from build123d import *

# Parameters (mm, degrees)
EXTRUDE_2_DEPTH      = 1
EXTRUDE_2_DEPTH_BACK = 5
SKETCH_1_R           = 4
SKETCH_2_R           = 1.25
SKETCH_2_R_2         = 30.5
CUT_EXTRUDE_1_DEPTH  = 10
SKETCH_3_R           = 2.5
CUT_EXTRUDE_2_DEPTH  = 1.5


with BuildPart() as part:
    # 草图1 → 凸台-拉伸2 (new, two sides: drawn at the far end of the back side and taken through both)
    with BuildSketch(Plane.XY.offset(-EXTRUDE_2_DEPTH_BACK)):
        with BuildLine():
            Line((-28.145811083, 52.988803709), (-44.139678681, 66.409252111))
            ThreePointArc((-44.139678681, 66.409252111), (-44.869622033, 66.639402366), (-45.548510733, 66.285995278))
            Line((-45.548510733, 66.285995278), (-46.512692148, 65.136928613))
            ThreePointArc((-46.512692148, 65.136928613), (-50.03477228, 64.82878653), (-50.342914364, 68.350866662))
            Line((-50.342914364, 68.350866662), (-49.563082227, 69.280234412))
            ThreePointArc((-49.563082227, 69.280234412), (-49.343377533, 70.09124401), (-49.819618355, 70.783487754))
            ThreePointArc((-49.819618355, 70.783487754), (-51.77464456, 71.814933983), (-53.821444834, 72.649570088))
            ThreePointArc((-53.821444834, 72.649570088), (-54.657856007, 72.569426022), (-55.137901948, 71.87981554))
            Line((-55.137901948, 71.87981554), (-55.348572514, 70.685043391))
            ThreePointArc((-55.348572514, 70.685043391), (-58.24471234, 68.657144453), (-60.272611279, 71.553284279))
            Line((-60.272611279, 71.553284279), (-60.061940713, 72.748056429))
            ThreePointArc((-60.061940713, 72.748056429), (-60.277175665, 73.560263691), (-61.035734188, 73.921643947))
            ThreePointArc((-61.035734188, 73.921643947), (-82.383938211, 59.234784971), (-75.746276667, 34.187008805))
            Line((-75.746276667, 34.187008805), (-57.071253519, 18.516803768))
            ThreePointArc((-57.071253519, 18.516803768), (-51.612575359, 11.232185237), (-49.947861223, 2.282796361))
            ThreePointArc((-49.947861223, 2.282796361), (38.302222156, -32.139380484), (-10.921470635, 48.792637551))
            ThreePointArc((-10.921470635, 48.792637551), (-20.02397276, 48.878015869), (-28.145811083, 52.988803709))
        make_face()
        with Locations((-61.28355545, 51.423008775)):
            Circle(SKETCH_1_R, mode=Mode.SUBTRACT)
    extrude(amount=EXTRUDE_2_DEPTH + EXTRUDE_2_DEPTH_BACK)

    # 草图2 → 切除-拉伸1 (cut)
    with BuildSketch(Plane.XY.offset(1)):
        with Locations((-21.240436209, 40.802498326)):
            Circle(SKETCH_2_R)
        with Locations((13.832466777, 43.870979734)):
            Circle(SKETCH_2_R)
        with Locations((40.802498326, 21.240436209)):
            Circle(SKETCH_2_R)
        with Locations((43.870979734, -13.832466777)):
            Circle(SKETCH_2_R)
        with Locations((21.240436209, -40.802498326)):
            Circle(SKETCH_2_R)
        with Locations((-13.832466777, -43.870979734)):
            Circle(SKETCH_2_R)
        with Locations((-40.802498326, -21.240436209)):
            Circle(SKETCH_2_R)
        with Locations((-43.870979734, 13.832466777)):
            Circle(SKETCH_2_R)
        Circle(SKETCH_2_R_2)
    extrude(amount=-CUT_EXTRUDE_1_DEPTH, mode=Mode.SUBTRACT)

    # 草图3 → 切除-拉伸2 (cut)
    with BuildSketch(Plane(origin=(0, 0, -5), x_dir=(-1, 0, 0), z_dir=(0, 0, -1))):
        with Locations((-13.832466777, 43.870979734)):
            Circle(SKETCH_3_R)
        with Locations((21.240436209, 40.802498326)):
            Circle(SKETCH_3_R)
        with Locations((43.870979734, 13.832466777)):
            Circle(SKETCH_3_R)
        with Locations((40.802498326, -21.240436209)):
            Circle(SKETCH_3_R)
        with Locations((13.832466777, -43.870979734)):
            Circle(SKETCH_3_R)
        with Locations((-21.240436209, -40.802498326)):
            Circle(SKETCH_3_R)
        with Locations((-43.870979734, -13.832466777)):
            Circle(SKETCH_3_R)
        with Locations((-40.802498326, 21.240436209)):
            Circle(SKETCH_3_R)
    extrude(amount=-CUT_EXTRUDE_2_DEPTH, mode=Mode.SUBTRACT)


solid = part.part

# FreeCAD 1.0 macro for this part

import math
import FreeCAD as App
import Part
import Sketcher
Q = App.Units.Quantity

doc = App.newDocument("Part")
body = doc.addObject("PartDesign::Body", "Body")

sketch1 = body.newObject("Sketcher::SketchObject", "Sketch")
sketch1.AttachmentSupport = (doc.getObject("XY_Plane"), [""])
sketch1.MapMode = "FlatFace"
sketch1.addGeometry(Part.LineSegment(App.Vector(-28.145811, 52.988804, 0), App.Vector(-44.139679, 66.409252, 0)), False)
sketch1.addGeometry(Part.ArcOfCircle(Part.Circle(App.Vector(-44.782466, 65.643208, 0), App.Vector(0, 0, 1), 1), math.radians(50), math.radians(140)), False)
sketch1.addGeometry(Part.LineSegment(App.Vector(-45.548511, 66.285995, 0), App.Vector(-46.512692, 65.136929, 0)), False)
sketch1.addGeometry(Part.ArcOfCircle(Part.Circle(App.Vector(-48.427803, 66.743898, 0), App.Vector(0, 0, 1), 2.5), math.radians(140), math.radians(320)), False)
sketch1.addGeometry(Part.LineSegment(App.Vector(-50.342914, 68.350867, 0), App.Vector(-49.563082, 69.280234, 0)), False)
sketch1.addGeometry(Part.ArcOfCircle(Part.Circle(App.Vector(-50.329127, 69.923022, 0), App.Vector(0, 0, 1), 1), math.radians(-40), math.radians(59.368916)), False)
sketch1.addGeometry(Part.ArcOfCircle(Part.Circle(App.Vector(-61.283555, 51.423009, 0), App.Vector(0, 0, 1), 22.5), math.radians(59.368916), math.radians(70.631084)), False)
sketch1.addGeometry(Part.ArcOfCircle(Part.Circle(App.Vector(-54.153094, 71.706167, 0), App.Vector(0, 0, 1), 1), math.radians(70.631084), math.radians(170)), False)
sketch1.addGeometry(Part.LineSegment(App.Vector(-55.137902, 71.879816, 0), App.Vector(-55.348573, 70.685043, 0)), False)
sketch1.addGeometry(Part.ArcOfCircle(Part.Circle(App.Vector(-57.810592, 71.119164, 0), App.Vector(0, 0, 1), 2.5), math.radians(170), math.radians(350)), False)
sketch1.addGeometry(Part.LineSegment(App.Vector(-60.272611, 71.553284, 0), App.Vector(-60.061941, 72.748056, 0)), False)
sketch1.addGeometry(Part.ArcOfCircle(Part.Circle(App.Vector(-61.046748, 72.921705, 0), App.Vector(0, 0, 1), 1), math.radians(-10), math.radians(89.368916)), False)
sketch1.addGeometry(Part.ArcOfCircle(Part.Circle(App.Vector(-61.283555, 51.423009, 0), App.Vector(0, 0, 1), 22.5), math.radians(89.368916), math.radians(230)), False)
sketch1.addGeometry(Part.LineSegment(App.Vector(-75.746277, 34.187009, 0), App.Vector(-57.071254, 18.516804, 0)), False)
sketch1.addGeometry(Part.ArcOfCircle(Part.Circle(App.Vector(-69.927006, 3.195915, 0), App.Vector(0, 0, 1), 20), math.radians(-2.616802), math.radians(50)), False)
sketch1.addGeometry(Part.ArcOfCircle(Part.Circle(App.Vector(0, 0, 0), App.Vector(0, 0, 1), 50), math.radians(177.383198), math.radians(462.616802)), False)
sketch1.addGeometry(Part.ArcOfCircle(Part.Circle(App.Vector(-15.290059, 68.309693, 0), App.Vector(0, 0, 1), 20), math.radians(-130), math.radians(-77.383198)), False)
sketch1.addGeometry(Part.Circle(App.Vector(-61.283555, 51.423009, 0), App.Vector(0, 0, 1), 4), False)
sketch1.addConstraint(Sketcher.Constraint("Tangent", 0, 2, 1, 1))
sketch1.addConstraint(Sketcher.Constraint("Tangent", 1, 2, 2, 1))
sketch1.addConstraint(Sketcher.Constraint("Tangent", 2, 2, 3, 2))
sketch1.addConstraint(Sketcher.Constraint("Tangent", 3, 1, 4, 1))
sketch1.addConstraint(Sketcher.Constraint("Tangent", 4, 2, 5, 1))
sketch1.addConstraint(Sketcher.Constraint("Tangent", 5, 2, 6, 1))
sketch1.addConstraint(Sketcher.Constraint("Tangent", 6, 2, 7, 1))
sketch1.addConstraint(Sketcher.Constraint("Tangent", 7, 2, 8, 1))
sketch1.addConstraint(Sketcher.Constraint("Tangent", 8, 2, 9, 2))
sketch1.addConstraint(Sketcher.Constraint("Tangent", 9, 1, 10, 1))
sketch1.addConstraint(Sketcher.Constraint("Tangent", 10, 2, 11, 1))
sketch1.addConstraint(Sketcher.Constraint("Tangent", 11, 2, 12, 1))
sketch1.addConstraint(Sketcher.Constraint("Tangent", 12, 2, 13, 1))
sketch1.addConstraint(Sketcher.Constraint("Tangent", 13, 2, 14, 2))
sketch1.addConstraint(Sketcher.Constraint("Tangent", 14, 1, 15, 1))
sketch1.addConstraint(Sketcher.Constraint("Tangent", 15, 2, 16, 2))
sketch1.addConstraint(Sketcher.Constraint("Tangent", 16, 1, 0, 1))
sketch1.addConstraint(Sketcher.Constraint("Coincident", 15, 3, -1, 1))
sketch1.addConstraint(Sketcher.Constraint("Coincident", 12, 3, 6, 3))
sketch1.addConstraint(Sketcher.Constraint("Coincident", 17, 3, 6, 3))
sketch1.addConstraint(Sketcher.Constraint("Equal", 1, 5))
sketch1.addConstraint(Sketcher.Constraint("Equal", 5, 7))
sketch1.addConstraint(Sketcher.Constraint("Equal", 3, 9))
sketch1.addConstraint(Sketcher.Constraint("Equal", 7, 11))
sketch1.addConstraint(Sketcher.Constraint("Equal", 6, 12))
sketch1.addConstraint(Sketcher.Constraint("Equal", 14, 16))
sketch1.addConstraint(Sketcher.Constraint("Perpendicular", 0, 2))
sketch1.addConstraint(Sketcher.Constraint("Parallel", 2, 4))
sketch1.addConstraint(Sketcher.Constraint("Parallel", 8, 10))
sketch1.addConstraint(Sketcher.Constraint("Perpendicular", 4, 13))
sketch1.addConstraint(Sketcher.Constraint("Equal", 4, 8))
sketch1.addConstraint(Sketcher.Constraint("Equal", 8, 10))
sketch1.addConstraint(Sketcher.Constraint("Diameter", 17, Q("8 mm")))
sketch1.addConstraint(Sketcher.Constraint("Radius", 1, Q("1 mm")))
sketch1.addConstraint(Sketcher.Constraint("Radius", 14, Q("20 mm")))
sketch1.addConstraint(Sketcher.Constraint("Radius", 15, Q("50 mm")))
sketch1.addConstraint(Sketcher.Constraint("Radius", 3, Q("2.5 mm")))
sketch1.addConstraint(Sketcher.Constraint("Radius", 6, Q("22.5 mm")))
sketch1.addConstraint(Sketcher.Constraint("Angle", 0, Q("140 deg")))
sketch1.addConstraint(Sketcher.Constraint("Angle", 8, Q("-100 deg")))
sketch1.addConstraint(Sketcher.Constraint("Distance", 2, Q("1.5 mm")))
sketch1.addConstraint(Sketcher.Constraint("DistanceX", 7, 2, -1, 1, Q("55.137902 mm")))
sketch1.addConstraint(Sketcher.Constraint("DistanceY", 6, 3, 1, 3, Q("14.220199 mm")))
sketch1.addConstraint(Sketcher.Constraint("DistanceX", 6, 3, 13, 2, Q("4.212302 mm")))
sketch1.addConstraint(Sketcher.Constraint("DistanceX", 1, 2, 16, 1, Q("17.4027 mm")))
pad1 = body.newObject("PartDesign::Pad", "Pad")
pad1.Profile = sketch1
pad1.Type = "TwoLengths"
pad1.Length = 1
pad1.Length2 = 5

sketch2 = body.newObject("Sketcher::SketchObject", "Sketch001")
sketch2.AttachmentSupport = (doc.getObject("XY_Plane"), [""])
sketch2.MapMode = "FlatFace"
sketch2.AttachmentOffset = App.Placement(App.Vector(0, 0, 1), App.Rotation())
sketch2.addGeometry(Part.Circle(App.Vector(-21.240436, 40.802498, 0), App.Vector(0, 0, 1), 1.25), False)
sketch2.addGeometry(Part.Circle(App.Vector(13.832467, 43.87098, 0), App.Vector(0, 0, 1), 1.25), False)
sketch2.addGeometry(Part.Circle(App.Vector(40.802498, 21.240436, 0), App.Vector(0, 0, 1), 1.25), False)
sketch2.addGeometry(Part.Circle(App.Vector(43.87098, -13.832467, 0), App.Vector(0, 0, 1), 1.25), False)
sketch2.addGeometry(Part.Circle(App.Vector(21.240436, -40.802498, 0), App.Vector(0, 0, 1), 1.25), False)
sketch2.addGeometry(Part.Circle(App.Vector(-13.832467, -43.87098, 0), App.Vector(0, 0, 1), 1.25), False)
sketch2.addGeometry(Part.Circle(App.Vector(-40.802498, -21.240436, 0), App.Vector(0, 0, 1), 1.25), False)
sketch2.addGeometry(Part.Circle(App.Vector(-43.87098, 13.832467, 0), App.Vector(0, 0, 1), 1.25), False)
sketch2.addGeometry(Part.Circle(App.Vector(0, 0, 0), App.Vector(0, 0, 1), 30.5), False)
sketch2.addConstraint(Sketcher.Constraint("Coincident", 8, 3, -1, 1))
sketch2.addConstraint(Sketcher.Constraint("Equal", 0, 1))
sketch2.addConstraint(Sketcher.Constraint("Equal", 1, 2))
sketch2.addConstraint(Sketcher.Constraint("Equal", 2, 3))
sketch2.addConstraint(Sketcher.Constraint("Equal", 3, 4))
sketch2.addConstraint(Sketcher.Constraint("Equal", 4, 5))
sketch2.addConstraint(Sketcher.Constraint("Equal", 5, 6))
sketch2.addConstraint(Sketcher.Constraint("Equal", 6, 7))
sketch2.addConstraint(Sketcher.Constraint("Symmetric", 0, 3, 4, 3, -1, 1))
sketch2.addConstraint(Sketcher.Constraint("Symmetric", 1, 3, 5, 3, -1, 1))
sketch2.addConstraint(Sketcher.Constraint("Symmetric", 2, 3, 6, 3, -1, 1))
sketch2.addConstraint(Sketcher.Constraint("Symmetric", 3, 3, 7, 3, -1, 1))
sketch2.addConstraint(Sketcher.Constraint("Diameter", 8, Q("61 mm")))
sketch2.addConstraint(Sketcher.Constraint("Diameter", 0, Q("2.5 mm")))
sketch2.addConstraint(Sketcher.Constraint("DistanceY", -1, 1, 0, 3, Q("40.802498 mm")))
sketch2.addConstraint(Sketcher.Constraint("DistanceX", -1, 1, 2, 3, Q("40.802498 mm")))
sketch2.addConstraint(Sketcher.Constraint("DistanceY", -1, 1, 1, 3, Q("43.87098 mm")))
sketch2.addConstraint(Sketcher.Constraint("DistanceX", -1, 1, 3, 3, Q("43.87098 mm")))
sketch2.addConstraint(Sketcher.Constraint("DistanceX", 1, 3, 2, 3, Q("26.970032 mm")))
sketch2.addConstraint(Sketcher.Constraint("DistanceY", 4, 3, 3, 3, Q("26.970032 mm")))
sketch2.addConstraint(Sketcher.Constraint("DistanceX", 1, 3, 4, 3, Q("7.407969 mm")))
sketch2.addConstraint(Sketcher.Constraint("DistanceY", 6, 3, 3, 3, Q("7.407969 mm")))
pocket1 = body.newObject("PartDesign::Pocket", "Pocket")
pocket1.Profile = sketch2
pocket1.Length = 10

sketch3 = body.newObject("Sketcher::SketchObject", "Sketch002")
sketch3.AttachmentSupport = (doc.getObject("XY_Plane"), [""])
sketch3.MapMode = "FlatFace"
sketch3.AttachmentOffset = App.Placement(App.Vector(0, 0, -5), App.Rotation())
sketch3.addGeometry(Part.Circle(App.Vector(13.832467, 43.87098, 0), App.Vector(0, 0, 1), 2.5), False)
sketch3.addGeometry(Part.Circle(App.Vector(-21.240436, 40.802498, 0), App.Vector(0, 0, 1), 2.5), False)
sketch3.addGeometry(Part.Circle(App.Vector(-43.87098, 13.832467, 0), App.Vector(0, 0, 1), 2.5), False)
sketch3.addGeometry(Part.Circle(App.Vector(-40.802498, -21.240436, 0), App.Vector(0, 0, 1), 2.5), False)
sketch3.addGeometry(Part.Circle(App.Vector(-13.832467, -43.87098, 0), App.Vector(0, 0, 1), 2.5), False)
sketch3.addGeometry(Part.Circle(App.Vector(21.240436, -40.802498, 0), App.Vector(0, 0, 1), 2.5), False)
sketch3.addGeometry(Part.Circle(App.Vector(43.87098, -13.832467, 0), App.Vector(0, 0, 1), 2.5), False)
sketch3.addGeometry(Part.Circle(App.Vector(40.802498, 21.240436, 0), App.Vector(0, 0, 1), 2.5), False)
sketch3.addConstraint(Sketcher.Constraint("Equal", 0, 1))
sketch3.addConstraint(Sketcher.Constraint("Equal", 1, 2))
sketch3.addConstraint(Sketcher.Constraint("Equal", 2, 3))
sketch3.addConstraint(Sketcher.Constraint("Equal", 3, 4))
sketch3.addConstraint(Sketcher.Constraint("Equal", 4, 5))
sketch3.addConstraint(Sketcher.Constraint("Equal", 5, 6))
sketch3.addConstraint(Sketcher.Constraint("Equal", 6, 7))
sketch3.addConstraint(Sketcher.Constraint("Symmetric", 0, 3, 4, 3, -1, 1))
sketch3.addConstraint(Sketcher.Constraint("Symmetric", 1, 3, 5, 3, -1, 1))
sketch3.addConstraint(Sketcher.Constraint("Symmetric", 2, 3, 6, 3, -1, 1))
sketch3.addConstraint(Sketcher.Constraint("Symmetric", 3, 3, 7, 3, -1, 1))
sketch3.addConstraint(Sketcher.Constraint("Diameter", 0, Q("5 mm")))
sketch3.addConstraint(Sketcher.Constraint("DistanceY", -1, 1, 1, 3, Q("40.802498 mm")))
sketch3.addConstraint(Sketcher.Constraint("DistanceX", 3, 3, -1, 1, Q("40.802498 mm")))
sketch3.addConstraint(Sketcher.Constraint("DistanceY", -1, 1, 0, 3, Q("43.87098 mm")))
sketch3.addConstraint(Sketcher.Constraint("DistanceX", 2, 3, -1, 1, Q("43.87098 mm")))
sketch3.addConstraint(Sketcher.Constraint("DistanceY", 2, 3, 1, 3, Q("26.970032 mm")))
sketch3.addConstraint(Sketcher.Constraint("DistanceX", 3, 3, 4, 3, Q("26.970032 mm")))
sketch3.addConstraint(Sketcher.Constraint("DistanceX", 1, 3, 4, 3, Q("7.407969 mm")))
sketch3.addConstraint(Sketcher.Constraint("DistanceY", 3, 3, 6, 3, Q("7.407969 mm")))
pocket2 = body.newObject("PartDesign::Pocket", "Pocket001")
pocket2.Profile = sketch3
pocket2.Length = 1.5
pocket2.Reversed = True

doc.recompute()
